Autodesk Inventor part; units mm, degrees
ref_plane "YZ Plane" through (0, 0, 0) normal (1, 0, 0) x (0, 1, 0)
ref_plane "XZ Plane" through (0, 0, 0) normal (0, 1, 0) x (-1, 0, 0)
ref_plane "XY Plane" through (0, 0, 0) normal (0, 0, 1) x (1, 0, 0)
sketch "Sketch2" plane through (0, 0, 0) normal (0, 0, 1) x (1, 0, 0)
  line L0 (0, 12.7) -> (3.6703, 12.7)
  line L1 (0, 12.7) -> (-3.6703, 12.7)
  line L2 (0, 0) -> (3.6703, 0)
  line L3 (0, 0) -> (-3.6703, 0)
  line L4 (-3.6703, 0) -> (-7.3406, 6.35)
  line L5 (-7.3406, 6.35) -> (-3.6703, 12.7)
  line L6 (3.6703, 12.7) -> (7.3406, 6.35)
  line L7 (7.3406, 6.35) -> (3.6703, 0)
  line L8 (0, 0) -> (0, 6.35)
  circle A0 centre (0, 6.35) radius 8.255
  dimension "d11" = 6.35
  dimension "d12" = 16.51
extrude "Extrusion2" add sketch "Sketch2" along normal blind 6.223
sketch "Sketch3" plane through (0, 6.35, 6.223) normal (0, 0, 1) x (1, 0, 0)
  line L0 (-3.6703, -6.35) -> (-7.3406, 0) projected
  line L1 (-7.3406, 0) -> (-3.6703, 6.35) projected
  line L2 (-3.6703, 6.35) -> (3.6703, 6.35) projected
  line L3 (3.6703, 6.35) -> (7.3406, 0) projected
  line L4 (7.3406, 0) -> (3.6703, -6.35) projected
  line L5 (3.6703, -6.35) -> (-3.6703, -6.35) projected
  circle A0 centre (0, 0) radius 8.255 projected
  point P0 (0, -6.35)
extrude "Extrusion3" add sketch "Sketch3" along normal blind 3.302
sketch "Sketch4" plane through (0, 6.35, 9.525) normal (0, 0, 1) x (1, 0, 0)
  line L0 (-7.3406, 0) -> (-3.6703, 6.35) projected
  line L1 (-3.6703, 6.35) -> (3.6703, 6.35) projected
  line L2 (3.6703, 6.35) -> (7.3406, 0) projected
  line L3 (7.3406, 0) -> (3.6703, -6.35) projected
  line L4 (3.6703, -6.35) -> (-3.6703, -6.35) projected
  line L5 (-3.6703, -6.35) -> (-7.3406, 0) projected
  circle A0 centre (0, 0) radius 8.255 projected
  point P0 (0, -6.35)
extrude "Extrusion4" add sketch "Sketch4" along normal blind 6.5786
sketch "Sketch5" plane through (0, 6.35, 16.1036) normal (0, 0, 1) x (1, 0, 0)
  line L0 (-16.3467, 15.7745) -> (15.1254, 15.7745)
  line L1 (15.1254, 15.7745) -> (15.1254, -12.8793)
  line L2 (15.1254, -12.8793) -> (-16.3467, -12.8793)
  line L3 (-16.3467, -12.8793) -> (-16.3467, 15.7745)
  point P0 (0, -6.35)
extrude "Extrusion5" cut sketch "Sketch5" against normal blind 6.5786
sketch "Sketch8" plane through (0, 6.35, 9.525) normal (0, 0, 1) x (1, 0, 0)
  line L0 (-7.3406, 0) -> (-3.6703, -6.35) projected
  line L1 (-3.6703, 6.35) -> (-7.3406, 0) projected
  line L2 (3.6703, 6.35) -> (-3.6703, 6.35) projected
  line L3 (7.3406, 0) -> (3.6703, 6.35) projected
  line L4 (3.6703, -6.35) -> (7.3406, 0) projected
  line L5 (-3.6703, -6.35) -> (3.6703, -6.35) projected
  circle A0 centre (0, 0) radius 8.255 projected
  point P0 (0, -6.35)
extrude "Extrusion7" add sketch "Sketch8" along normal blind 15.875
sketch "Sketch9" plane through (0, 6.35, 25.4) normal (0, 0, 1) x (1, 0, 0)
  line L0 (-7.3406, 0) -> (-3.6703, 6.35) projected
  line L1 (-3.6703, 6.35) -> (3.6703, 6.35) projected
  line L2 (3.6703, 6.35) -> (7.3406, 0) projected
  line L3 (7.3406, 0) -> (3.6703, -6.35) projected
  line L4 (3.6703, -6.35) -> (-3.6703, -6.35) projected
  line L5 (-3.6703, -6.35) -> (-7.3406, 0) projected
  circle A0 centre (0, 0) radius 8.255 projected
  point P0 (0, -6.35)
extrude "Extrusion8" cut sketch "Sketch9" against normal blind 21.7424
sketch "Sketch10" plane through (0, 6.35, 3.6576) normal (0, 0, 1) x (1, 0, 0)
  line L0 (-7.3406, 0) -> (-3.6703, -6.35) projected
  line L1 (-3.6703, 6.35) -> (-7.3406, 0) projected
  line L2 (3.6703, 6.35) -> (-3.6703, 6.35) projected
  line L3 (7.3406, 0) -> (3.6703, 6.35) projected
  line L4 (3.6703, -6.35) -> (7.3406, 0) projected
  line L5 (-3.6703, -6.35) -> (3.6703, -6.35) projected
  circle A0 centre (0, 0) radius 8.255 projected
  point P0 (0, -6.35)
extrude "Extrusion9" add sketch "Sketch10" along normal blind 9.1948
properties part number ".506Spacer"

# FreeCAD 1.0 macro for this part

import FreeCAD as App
import Part
import Sketcher

V = App.Vector
Q = App.Units.Quantity

doc = App.newDocument("Part")
params = doc.addObject("Spreadsheet::Sheet", "Params")
for row, (alias, value) in enumerate([
    ("sketch1_diameter", "0.65 in"),
    ("sketch1_width", "0.289 in"),
    ("pad1_length", "0.245 in"),
    ("sketch2_diameter", "0.65 in"),
    ("sketch2_width", "0.289 in"),
    ("pad2_length", "0.13 in"),
    ("sketch3_diameter", "0.65 in"),
    ("sketch3_width", "0.289 in"),
    ("pad3_length", "0.259 in"),
    ("pocket1_length", "0.259 in"),
    ("sketch5_diameter", "0.65 in"),
    ("sketch5_width", "0.289 in"),
    ("pad4_length", "0.625 in"),
    ("sketch6_diameter", "0.65 in"),
    ("sketch6_width", "0.289 in"),
    ("pocket2_length", "0.856 in"),
    ("sketch7_diameter", "0.65 in"),
    ("sketch7_width", "0.289 in"),
    ("pad5_length", "0.362 in"),
], start=1):
    params.set(f"A{row}", alias)
    params.set(f"B{row}", "=" + value)
    params.setAlias(f"B{row}", alias)

body = doc.addObject("PartDesign::Body", "Body")

sketch1 = body.newObject("Sketcher::SketchObject", "Sketch")
sketch1.AttachmentSupport = (doc.getObject("XY_Plane"), [""])
sketch1.MapMode = "FlatFace"
sketch1.addGeometry(Part.Circle(V(0, 6, 0), V(0, 0, 1), 8), False)
sketch1.addGeometry(Part.LineSegment(V(-4, 13, 0), V(4, 13, 0)), False)
sketch1.addGeometry(Part.LineSegment(V(4, 13, 0), V(7, 6, 0)), False)
sketch1.addGeometry(Part.LineSegment(V(7, 6, 0), V(4, 0, 0)), False)
sketch1.addGeometry(Part.LineSegment(V(4, 0, 0), V(-4, 0, 0)), False)
sketch1.addGeometry(Part.LineSegment(V(-4, 0, 0), V(-7, 6, 0)), False)
sketch1.addGeometry(Part.LineSegment(V(-7, 6, 0), V(-4, 13, 0)), False)
sketch1.addConstraint(Sketcher.Constraint("Coincident", 1, 2, 2, 1))
sketch1.addConstraint(Sketcher.Constraint("Coincident", 2, 2, 3, 1))
sketch1.addConstraint(Sketcher.Constraint("Coincident", 3, 2, 4, 1))
sketch1.addConstraint(Sketcher.Constraint("Coincident", 4, 2, 5, 1))
sketch1.addConstraint(Sketcher.Constraint("Coincident", 5, 2, 6, 1))
sketch1.addConstraint(Sketcher.Constraint("Coincident", 6, 2, 1, 1))
sketch1.addConstraint(Sketcher.Constraint("Horizontal", 1))
sketch1.addConstraint(Sketcher.Constraint("Horizontal", 4))
sketch1.addConstraint(Sketcher.Constraint("Symmetric", 3, 2, 4, 2, -1, 1))
sketch1.addConstraint(Sketcher.Constraint("Symmetric", 2, 2, 5, 2, -2))
sketch1.addConstraint(Sketcher.Constraint("PointOnObject", 0, 3, -2))
sketch1.addConstraint(Sketcher.Constraint("Parallel", 2, 5))
sketch1.addConstraint(Sketcher.Constraint("Parallel", 3, 6))
sketch1.addConstraint(Sketcher.Constraint("Horizontal", 0, 3, 2, 2))
sketch1.addConstraint(Sketcher.Constraint("Vertical", 1, 2, 3, 2))
sketch1.addConstraint(Sketcher.Constraint("Diameter", 0, Q("0.65 in")))
sketch1.addConstraint(Sketcher.Constraint("DistanceY", -1, 1, 0, 3, Q("0.25 in")))
sketch1.addConstraint(Sketcher.Constraint("DistanceX", 1, 1, 1, 2, Q("0.289 in")))
sketch1.addConstraint(Sketcher.Constraint("DistanceX", -1, 1, 2, 2, Q("0.289 in")))
sketch1.setExpression("Constraints[15]", "Params.sketch1_diameter")
sketch1.setExpression("Constraints[17]", "Params.sketch1_width")
pad1 = body.newObject("PartDesign::Pad", "Pad")
pad1.Profile = sketch1
pad1.setExpression("Length", "Params.pad1_length")

sketch2 = body.newObject("Sketcher::SketchObject", "Sketch001")
sketch2.AttachmentSupport = (doc.getObject("XY_Plane"), [""])
sketch2.MapMode = "FlatFace"
sketch2.AttachmentOffset = App.Placement(V(0, 0, 0.245 * 25.4), App.Rotation())
sketch2.addGeometry(Part.Circle(V(0, 6, 0), V(0, 0, 1), 8), False)
sketch2.addGeometry(Part.LineSegment(V(4, 0, 0), V(-4, 0, 0)), False)
sketch2.addGeometry(Part.LineSegment(V(-4, 0, 0), V(-7, 6, 0)), False)
sketch2.addGeometry(Part.LineSegment(V(-7, 6, 0), V(-4, 13, 0)), False)
sketch2.addGeometry(Part.LineSegment(V(-4, 13, 0), V(4, 13, 0)), False)
sketch2.addGeometry(Part.LineSegment(V(4, 13, 0), V(7, 6, 0)), False)
sketch2.addGeometry(Part.LineSegment(V(7, 6, 0), V(4, 0, 0)), False)
sketch2.addConstraint(Sketcher.Constraint("Coincident", 1, 2, 2, 1))
sketch2.addConstraint(Sketcher.Constraint("Coincident", 2, 2, 3, 1))
sketch2.addConstraint(Sketcher.Constraint("Coincident", 3, 2, 4, 1))
sketch2.addConstraint(Sketcher.Constraint("Coincident", 4, 2, 5, 1))
sketch2.addConstraint(Sketcher.Constraint("Coincident", 5, 2, 6, 1))
sketch2.addConstraint(Sketcher.Constraint("Coincident", 6, 2, 1, 1))
sketch2.addConstraint(Sketcher.Constraint("Horizontal", 1))
sketch2.addConstraint(Sketcher.Constraint("Horizontal", 4))
sketch2.addConstraint(Sketcher.Constraint("Symmetric", 1, 2, 6, 2, -1, 1))
sketch2.addConstraint(Sketcher.Constraint("Symmetric", 2, 2, 5, 2, -2))
sketch2.addConstraint(Sketcher.Constraint("PointOnObject", 0, 3, -2))
sketch2.addConstraint(Sketcher.Constraint("Parallel", 2, 5))
sketch2.addConstraint(Sketcher.Constraint("Parallel", 3, 6))
sketch2.addConstraint(Sketcher.Constraint("Horizontal", 0, 3, 2, 2))
sketch2.addConstraint(Sketcher.Constraint("Vertical", 1, 2, 3, 2))
sketch2.addConstraint(Sketcher.Constraint("Diameter", 0, Q("0.65 in")))
sketch2.addConstraint(Sketcher.Constraint("DistanceY", -1, 1, 3, 2, Q("0.5 in")))
sketch2.addConstraint(Sketcher.Constraint("DistanceX", 1, 2, 1, 1, Q("0.289 in")))
sketch2.addConstraint(Sketcher.Constraint("DistanceX", 2, 2, -1, 1, Q("0.289 in")))
sketch2.setExpression("Constraints[15]", "Params.sketch2_diameter")
sketch2.setExpression("Constraints[17]", "Params.sketch2_width")
pad2 = body.newObject("PartDesign::Pad", "Pad001")
pad2.Profile = sketch2
pad2.setExpression("Length", "Params.pad2_length")

sketch3 = body.newObject("Sketcher::SketchObject", "Sketch002")
sketch3.AttachmentSupport = (doc.getObject("XY_Plane"), [""])
sketch3.MapMode = "FlatFace"
sketch3.AttachmentOffset = App.Placement(V(0, 0, 0.375 * 25.4), App.Rotation())
sketch3.addGeometry(Part.Circle(V(0, 6, 0), V(0, 0, 1), 8), False)
sketch3.addGeometry(Part.LineSegment(V(-4, 0, 0), V(-7, 6, 0)), False)
sketch3.addGeometry(Part.LineSegment(V(-7, 6, 0), V(-4, 13, 0)), False)
sketch3.addGeometry(Part.LineSegment(V(-4, 13, 0), V(4, 13, 0)), False)
sketch3.addGeometry(Part.LineSegment(V(4, 13, 0), V(7, 6, 0)), False)
sketch3.addGeometry(Part.LineSegment(V(7, 6, 0), V(4, 0, 0)), False)
sketch3.addGeometry(Part.LineSegment(V(4, 0, 0), V(-4, 0, 0)), False)
sketch3.addConstraint(Sketcher.Constraint("Coincident", 1, 2, 2, 1))
sketch3.addConstraint(Sketcher.Constraint("Coincident", 2, 2, 3, 1))
sketch3.addConstraint(Sketcher.Constraint("Coincident", 3, 2, 4, 1))
sketch3.addConstraint(Sketcher.Constraint("Coincident", 4, 2, 5, 1))
sketch3.addConstraint(Sketcher.Constraint("Coincident", 5, 2, 6, 1))
sketch3.addConstraint(Sketcher.Constraint("Coincident", 6, 2, 1, 1))
sketch3.addConstraint(Sketcher.Constraint("Horizontal", 3))
sketch3.addConstraint(Sketcher.Constraint("Horizontal", 6))
sketch3.addConstraint(Sketcher.Constraint("Symmetric", 5, 2, 6, 2, -1, 1))
sketch3.addConstraint(Sketcher.Constraint("Symmetric", 1, 2, 4, 2, -2))
sketch3.addConstraint(Sketcher.Constraint("PointOnObject", 0, 3, -2))
sketch3.addConstraint(Sketcher.Constraint("Parallel", 1, 4))
sketch3.addConstraint(Sketcher.Constraint("Parallel", 2, 5))
sketch3.addConstraint(Sketcher.Constraint("Horizontal", 0, 3, 1, 2))
sketch3.addConstraint(Sketcher.Constraint("Vertical", 3, 2, 5, 2))
sketch3.addConstraint(Sketcher.Constraint("Diameter", 0, Q("0.65 in")))
sketch3.addConstraint(Sketcher.Constraint("DistanceY", -1, 1, 2, 2, Q("0.5 in")))
sketch3.addConstraint(Sketcher.Constraint("DistanceX", 3, 1, 3, 2, Q("0.289 in")))
sketch3.addConstraint(Sketcher.Constraint("DistanceX", 1, 2, -1, 1, Q("0.289 in")))
sketch3.setExpression("Constraints[15]", "Params.sketch3_diameter")
sketch3.setExpression("Constraints[17]", "Params.sketch3_width")
pad3 = body.newObject("PartDesign::Pad", "Pad002")
pad3.Profile = sketch3
pad3.setExpression("Length", "Params.pad3_length")

sketch4 = body.newObject("Sketcher::SketchObject", "Sketch003")
sketch4.AttachmentSupport = (doc.getObject("XY_Plane"), [""])
sketch4.MapMode = "FlatFace"
sketch4.AttachmentOffset = App.Placement(V(0, 0, 0.634 * 25.4), App.Rotation())
sketch4.addGeometry(Part.LineSegment(V(15, 22, 0), V(-16, 22, 0)), False)
sketch4.addGeometry(Part.LineSegment(V(-16, 22, 0), V(-16, -7, 0)), False)
sketch4.addGeometry(Part.LineSegment(V(-16, -7, 0), V(15, -7, 0)), False)
sketch4.addGeometry(Part.LineSegment(V(15, -7, 0), V(15, 22, 0)), False)
sketch4.addConstraint(Sketcher.Constraint("Coincident", 0, 2, 1, 1))
sketch4.addConstraint(Sketcher.Constraint("Coincident", 1, 2, 2, 1))
sketch4.addConstraint(Sketcher.Constraint("Coincident", 2, 2, 3, 1))
sketch4.addConstraint(Sketcher.Constraint("Coincident", 3, 2, 0, 1))
sketch4.addConstraint(Sketcher.Constraint("Horizontal", 0))
sketch4.addConstraint(Sketcher.Constraint("Vertical", 1))
sketch4.addConstraint(Sketcher.Constraint("Horizontal", 2))
sketch4.addConstraint(Sketcher.Constraint("Vertical", 3))
sketch4.addConstraint(Sketcher.Constraint("DistanceY", 1, 2, 1, 1, Q("1.1281 in")))
sketch4.addConstraint(Sketcher.Constraint("DistanceX", 0, 2, 0, 1, 31.472))
sketch4.addConstraint(Sketcher.Constraint("DistanceX", -1, 1, 2, 2, Q("0.5955 in")))
sketch4.addConstraint(Sketcher.Constraint("DistanceY", -1, 1, 0, 2, 22.1245))
pocket1 = body.newObject("PartDesign::Pocket", "Pocket")
pocket1.Profile = sketch4
pocket1.setExpression("Length", "Params.pocket1_length")

sketch5 = body.newObject("Sketcher::SketchObject", "Sketch004")
sketch5.AttachmentSupport = (doc.getObject("XY_Plane"), [""])
sketch5.MapMode = "FlatFace"
sketch5.AttachmentOffset = App.Placement(V(0, 0, 0.375 * 25.4), App.Rotation())
sketch5.addGeometry(Part.Circle(V(0, 6, 0), V(0, 0, 1), 8), False)
sketch5.addGeometry(Part.LineSegment(V(-4, 0, 0), V(-7, 6, 0)), False)
sketch5.addGeometry(Part.LineSegment(V(-7, 6, 0), V(-4, 13, 0)), False)
sketch5.addGeometry(Part.LineSegment(V(-4, 13, 0), V(4, 13, 0)), False)
sketch5.addGeometry(Part.LineSegment(V(4, 13, 0), V(7, 6, 0)), False)
sketch5.addGeometry(Part.LineSegment(V(7, 6, 0), V(4, 0, 0)), False)
sketch5.addGeometry(Part.LineSegment(V(4, 0, 0), V(-4, 0, 0)), False)
sketch5.addConstraint(Sketcher.Constraint("Coincident", 1, 2, 2, 1))
sketch5.addConstraint(Sketcher.Constraint("Coincident", 2, 2, 3, 1))
sketch5.addConstraint(Sketcher.Constraint("Coincident", 3, 2, 4, 1))
sketch5.addConstraint(Sketcher.Constraint("Coincident", 4, 2, 5, 1))
sketch5.addConstraint(Sketcher.Constraint("Coincident", 5, 2, 6, 1))
sketch5.addConstraint(Sketcher.Constraint("Coincident", 6, 2, 1, 1))
sketch5.addConstraint(Sketcher.Constraint("Horizontal", 3))
sketch5.addConstraint(Sketcher.Constraint("Horizontal", 6))
sketch5.addConstraint(Sketcher.Constraint("Symmetric", 5, 2, 6, 2, -1, 1))
sketch5.addConstraint(Sketcher.Constraint("Symmetric", 1, 2, 4, 2, -2))
sketch5.addConstraint(Sketcher.Constraint("PointOnObject", 0, 3, -2))
sketch5.addConstraint(Sketcher.Constraint("Parallel", 1, 4))
sketch5.addConstraint(Sketcher.Constraint("Parallel", 2, 5))
sketch5.addConstraint(Sketcher.Constraint("Horizontal", 0, 3, 1, 2))
sketch5.addConstraint(Sketcher.Constraint("Vertical", 3, 2, 5, 2))
sketch5.addConstraint(Sketcher.Constraint("Diameter", 0, Q("0.65 in")))
sketch5.addConstraint(Sketcher.Constraint("DistanceY", -1, 1, 2, 2, Q("0.5 in")))
sketch5.addConstraint(Sketcher.Constraint("DistanceX", 3, 1, 3, 2, Q("0.289 in")))
sketch5.addConstraint(Sketcher.Constraint("DistanceX", 1, 2, -1, 1, Q("0.289 in")))
sketch5.setExpression("Constraints[15]", "Params.sketch5_diameter")
sketch5.setExpression("Constraints[17]", "Params.sketch5_width")
pad4 = body.newObject("PartDesign::Pad", "Pad003")
pad4.Profile = sketch5
pad4.setExpression("Length", "Params.pad4_length")

sketch6 = body.newObject("Sketcher::SketchObject", "Sketch005")
sketch6.AttachmentSupport = (doc.getObject("XY_Plane"), [""])
sketch6.MapMode = "FlatFace"
sketch6.AttachmentOffset = App.Placement(V(0, 0, 1 * 25.4), App.Rotation())
sketch6.addGeometry(Part.Circle(V(0, 6, 0), V(0, 0, 1), 8), False)
sketch6.addGeometry(Part.LineSegment(V(-4, 0, 0), V(-7, 6, 0)), False)
sketch6.addGeometry(Part.LineSegment(V(-7, 6, 0), V(-4, 13, 0)), False)
sketch6.addGeometry(Part.LineSegment(V(-4, 13, 0), V(4, 13, 0)), False)
sketch6.addGeometry(Part.LineSegment(V(4, 13, 0), V(7, 6, 0)), False)
sketch6.addGeometry(Part.LineSegment(V(7, 6, 0), V(4, 0, 0)), False)
sketch6.addGeometry(Part.LineSegment(V(4, 0, 0), V(-4, 0, 0)), False)
sketch6.addConstraint(Sketcher.Constraint("Coincident", 1, 2, 2, 1))
sketch6.addConstraint(Sketcher.Constraint("Coincident", 2, 2, 3, 1))
sketch6.addConstraint(Sketcher.Constraint("Coincident", 3, 2, 4, 1))
sketch6.addConstraint(Sketcher.Constraint("Coincident", 4, 2, 5, 1))
sketch6.addConstraint(Sketcher.Constraint("Coincident", 5, 2, 6, 1))
sketch6.addConstraint(Sketcher.Constraint("Coincident", 6, 2, 1, 1))
sketch6.addConstraint(Sketcher.Constraint("Horizontal", 3))
sketch6.addConstraint(Sketcher.Constraint("Horizontal", 6))
sketch6.addConstraint(Sketcher.Constraint("Symmetric", 5, 2, 6, 2, -1, 1))
sketch6.addConstraint(Sketcher.Constraint("Symmetric", 1, 2, 4, 2, -2))
sketch6.addConstraint(Sketcher.Constraint("PointOnObject", 0, 3, -2))
sketch6.addConstraint(Sketcher.Constraint("Parallel", 1, 4))
sketch6.addConstraint(Sketcher.Constraint("Parallel", 2, 5))
sketch6.addConstraint(Sketcher.Constraint("Horizontal", 0, 3, 1, 2))
sketch6.addConstraint(Sketcher.Constraint("Vertical", 3, 2, 5, 2))
sketch6.addConstraint(Sketcher.Constraint("Diameter", 0, Q("0.65 in")))
sketch6.addConstraint(Sketcher.Constraint("DistanceY", -1, 1, 2, 2, Q("0.5 in")))
sketch6.addConstraint(Sketcher.Constraint("DistanceX", 3, 1, 3, 2, Q("0.289 in")))
sketch6.addConstraint(Sketcher.Constraint("DistanceX", 1, 2, -1, 1, Q("0.289 in")))
sketch6.setExpression("Constraints[15]", "Params.sketch6_diameter")
sketch6.setExpression("Constraints[17]", "Params.sketch6_width")
pocket2 = body.newObject("PartDesign::Pocket", "Pocket001")
pocket2.Profile = sketch6
pocket2.setExpression("Length", "Params.pocket2_length")

sketch7 = body.newObject("Sketcher::SketchObject", "Sketch006")
sketch7.AttachmentSupport = (doc.getObject("XY_Plane"), [""])
sketch7.MapMode = "FlatFace"
sketch7.AttachmentOffset = App.Placement(V(0, 0, 0.144 * 25.4), App.Rotation())
sketch7.addGeometry(Part.Circle(V(0, 6, 0), V(0, 0, 1), 8), False)
sketch7.addGeometry(Part.LineSegment(V(-4, 0, 0), V(-7, 6, 0)), False)
sketch7.addGeometry(Part.LineSegment(V(-7, 6, 0), V(-4, 13, 0)), False)
sketch7.addGeometry(Part.LineSegment(V(-4, 13, 0), V(4, 13, 0)), False)
sketch7.addGeometry(Part.LineSegment(V(4, 13, 0), V(7, 6, 0)), False)
sketch7.addGeometry(Part.LineSegment(V(7, 6, 0), V(4, 0, 0)), False)
sketch7.addGeometry(Part.LineSegment(V(4, 0, 0), V(-4, 0, 0)), False)
sketch7.addConstraint(Sketcher.Constraint("Coincident", 1, 2, 2, 1))
sketch7.addConstraint(Sketcher.Constraint("Coincident", 2, 2, 3, 1))
sketch7.addConstraint(Sketcher.Constraint("Coincident", 3, 2, 4, 1))
sketch7.addConstraint(Sketcher.Constraint("Coincident", 4, 2, 5, 1))
sketch7.addConstraint(Sketcher.Constraint("Coincident", 5, 2, 6, 1))
sketch7.addConstraint(Sketcher.Constraint("Coincident", 6, 2, 1, 1))
sketch7.addConstraint(Sketcher.Constraint("Horizontal", 3))
sketch7.addConstraint(Sketcher.Constraint("Horizontal", 6))
sketch7.addConstraint(Sketcher.Constraint("Symmetric", 5, 2, 6, 2, -1, 1))
sketch7.addConstraint(Sketcher.Constraint("Symmetric", 1, 2, 4, 2, -2))
sketch7.addConstraint(Sketcher.Constraint("PointOnObject", 0, 3, -2))
sketch7.addConstraint(Sketcher.Constraint("Parallel", 1, 4))
sketch7.addConstraint(Sketcher.Constraint("Parallel", 2, 5))
sketch7.addConstraint(Sketcher.Constraint("Horizontal", 0, 3, 1, 2))
sketch7.addConstraint(Sketcher.Constraint("Vertical", 3, 2, 5, 2))
sketch7.addConstraint(Sketcher.Constraint("Diameter", 0, Q("0.65 in")))
sketch7.addConstraint(Sketcher.Constraint("DistanceY", -1, 1, 2, 2, Q("0.5 in")))
sketch7.addConstraint(Sketcher.Constraint("DistanceX", 3, 1, 3, 2, Q("0.289 in")))
sketch7.addConstraint(Sketcher.Constraint("DistanceX", 1, 2, -1, 1, Q("0.289 in")))
sketch7.setExpression("Constraints[15]", "Params.sketch7_diameter")
sketch7.setExpression("Constraints[17]", "Params.sketch7_width")
pad5 = body.newObject("PartDesign::Pad", "Pad004")
pad5.Profile = sketch7
pad5.setExpression("Length", "Params.pad5_length")

doc.recompute()
